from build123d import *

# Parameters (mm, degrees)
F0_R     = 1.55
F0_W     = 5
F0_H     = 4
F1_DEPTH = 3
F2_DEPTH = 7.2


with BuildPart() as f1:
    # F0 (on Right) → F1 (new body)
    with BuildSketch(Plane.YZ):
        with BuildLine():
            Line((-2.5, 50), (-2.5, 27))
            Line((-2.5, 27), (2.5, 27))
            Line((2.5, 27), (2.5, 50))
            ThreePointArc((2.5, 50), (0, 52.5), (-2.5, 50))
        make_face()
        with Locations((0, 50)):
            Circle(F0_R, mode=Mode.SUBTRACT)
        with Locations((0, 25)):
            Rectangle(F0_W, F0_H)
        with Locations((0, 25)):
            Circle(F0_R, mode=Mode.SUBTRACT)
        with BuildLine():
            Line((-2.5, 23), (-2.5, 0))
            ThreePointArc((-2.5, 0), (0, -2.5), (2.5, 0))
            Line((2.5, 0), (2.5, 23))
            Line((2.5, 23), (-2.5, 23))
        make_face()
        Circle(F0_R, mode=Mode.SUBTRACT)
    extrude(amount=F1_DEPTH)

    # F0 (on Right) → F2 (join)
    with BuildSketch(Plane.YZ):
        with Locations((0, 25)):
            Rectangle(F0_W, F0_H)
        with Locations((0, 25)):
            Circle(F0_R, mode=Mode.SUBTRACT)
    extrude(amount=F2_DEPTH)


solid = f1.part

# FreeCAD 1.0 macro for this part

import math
import FreeCAD as App
import Part
import Sketcher

V = App.Vector
Q = App.Units.Quantity


def add_polygon(sketch, points):
    """Adds a closed chain of lines whose ends are joined by coincident constraints."""
    first, n = sketch.GeometryCount, len(points)
    for a, b in zip(points, points[1:] + points[:1]):
        sketch.addGeometry(Part.LineSegment(App.Vector(*a, 0), App.Vector(*b, 0)), False)
    for i in range(n):
        sketch.addConstraint(Sketcher.Constraint("Coincident", first + i, 2, first + (i + 1) % n, 1))

doc = App.newDocument("Part")
params = doc.addObject("Spreadsheet::Sheet", "Params")
for row, (alias, value) in enumerate([
    ("sketch1_diameter", "3.1 mm"),
    ("sketch1_radius", "2.5 mm"),
    ("sketch1_height", "50 mm"),
    ("pad1_length", "3 mm"),
    ("sketch2_diameter", "3.1 mm"),
    ("sketch2_width", "5 mm"),
    ("sketch2_height", "4 mm"),
    ("pad2_length", "7.2 mm"),
], start=1):
    params.set(f"A{row}", alias)
    params.set(f"B{row}", "=" + value)
    params.setAlias(f"B{row}", alias)

body = doc.addObject("PartDesign::Body", "Body")

sketch1 = body.newObject("Sketcher::SketchObject", "Sketch")
sketch1.AttachmentSupport = (doc.getObject("YZ_Plane"), [""])
sketch1.MapMode = "FlatFace"
sketch1.addGeometry(Part.LineSegment(V(-2.5, 50, 0), V(-2.5, 0, 0)), False)
sketch1.addGeometry(Part.ArcOfCircle(Part.Circle(V(0, 0, 0), V(0, 0, 1), 2.5), math.radians(180), math.radians(360)), False)
sketch1.addGeometry(Part.LineSegment(V(2.5, 0, 0), V(2.5, 50, 0)), False)
sketch1.addGeometry(Part.ArcOfCircle(Part.Circle(V(0, 50, 0), V(0, 0, 1), 2.5), math.radians(0), math.radians(180)), False)
sketch1.addGeometry(Part.Circle(V(0, 0, 0), V(0, 0, 1), 1.6), False)
sketch1.addGeometry(Part.Circle(V(0, 25, 0), V(0, 0, 1), 1.6), False)
sketch1.addGeometry(Part.Circle(V(0, 50, 0), V(0, 0, 1), 1.6), False)
sketch1.addConstraint(Sketcher.Constraint("Tangent", 0, 2, 1, 1))
sketch1.addConstraint(Sketcher.Constraint("Tangent", 1, 2, 2, 1))
sketch1.addConstraint(Sketcher.Constraint("Tangent", 2, 2, 3, 1))
sketch1.addConstraint(Sketcher.Constraint("Tangent", 3, 2, 0, 1))
sketch1.addConstraint(Sketcher.Constraint("Vertical", 0))
sketch1.addConstraint(Sketcher.Constraint("Vertical", 2))
sketch1.addConstraint(Sketcher.Constraint("Coincident", 1, 3, -1, 1))
sketch1.addConstraint(Sketcher.Constraint("Coincident", 4, 3, -1, 1))
sketch1.addConstraint(Sketcher.Constraint("Coincident", 6, 3, 3, 3))
sketch1.addConstraint(Sketcher.Constraint("Equal", 4, 5))
sketch1.addConstraint(Sketcher.Constraint("Equal", 5, 6))
sketch1.addConstraint(Sketcher.Constraint("PointOnObject", 5, 3, -2))
sketch1.addConstraint(Sketcher.Constraint("Diameter", 4, Q("3.1 mm")))
sketch1.addConstraint(Sketcher.Constraint("Radius", 1, Q("2.5 mm")))
sketch1.addConstraint(Sketcher.Constraint("DistanceY", 0, 2, 0, 1, Q("50 mm")))
sketch1.addConstraint(Sketcher.Constraint("DistanceY", -1, 1, 5, 3, Q("25 mm")))
sketch1.setExpression("Constraints[12]", "Params.sketch1_diameter")
sketch1.setExpression("Constraints[13]", "Params.sketch1_radius")
sketch1.setExpression("Constraints[14]", "Params.sketch1_height")
pad1 = body.newObject("PartDesign::Pad", "Pad")
pad1.Profile = sketch1
pad1.setExpression("Length", "Params.pad1_length")

sketch2 = body.newObject("Sketcher::SketchObject", "Sketch001")
sketch2.AttachmentSupport = (doc.getObject("YZ_Plane"), [""])
sketch2.MapMode = "FlatFace"
add_polygon(sketch2, [(-2.5, 27), (-2.5, 23), (2.5, 23), (2.5, 27)])
sketch2.addGeometry(Part.Circle(V(0, 25, 0), V(0, 0, 1), 1.6), False)
sketch2.addConstraint(Sketcher.Constraint("Vertical", 0))
sketch2.addConstraint(Sketcher.Constraint("Horizontal", 1))
sketch2.addConstraint(Sketcher.Constraint("Vertical", 2))
sketch2.addConstraint(Sketcher.Constraint("Horizontal", 3))
sketch2.addConstraint(Sketcher.Constraint("PointOnObject", 4, 3, -2))
sketch2.addConstraint(Sketcher.Constraint("Diameter", 4, Q("3.1 mm")))
sketch2.addConstraint(Sketcher.Constraint("DistanceX", 1, 1, 1, 2, Q("5 mm")))
sketch2.addConstraint(Sketcher.Constraint("DistanceY", 0, 2, 0, 1, Q("4 mm")))
sketch2.addConstraint(Sketcher.Constraint("DistanceY", -1, 1, 4, 3, Q("25 mm")))
sketch2.addConstraint(Sketcher.Constraint("DistanceY", -1, 1, 0, 2, Q("23 mm")))
sketch2.addConstraint(Sketcher.Constraint("DistanceX", 0, 2, -1, 1, Q("2.5 mm")))
sketch2.setExpression("Constraints[9]", "Params.sketch2_diameter")
sketch2.setExpression("Constraints[10]", "Params.sketch2_width")
sketch2.setExpression("Constraints[11]", "Params.sketch2_height")
pad2 = body.newObject("PartDesign::Pad", "Pad001")
pad2.Profile = sketch2
pad2.setExpression("Length", "Params.pad2_length")

doc.recompute()
